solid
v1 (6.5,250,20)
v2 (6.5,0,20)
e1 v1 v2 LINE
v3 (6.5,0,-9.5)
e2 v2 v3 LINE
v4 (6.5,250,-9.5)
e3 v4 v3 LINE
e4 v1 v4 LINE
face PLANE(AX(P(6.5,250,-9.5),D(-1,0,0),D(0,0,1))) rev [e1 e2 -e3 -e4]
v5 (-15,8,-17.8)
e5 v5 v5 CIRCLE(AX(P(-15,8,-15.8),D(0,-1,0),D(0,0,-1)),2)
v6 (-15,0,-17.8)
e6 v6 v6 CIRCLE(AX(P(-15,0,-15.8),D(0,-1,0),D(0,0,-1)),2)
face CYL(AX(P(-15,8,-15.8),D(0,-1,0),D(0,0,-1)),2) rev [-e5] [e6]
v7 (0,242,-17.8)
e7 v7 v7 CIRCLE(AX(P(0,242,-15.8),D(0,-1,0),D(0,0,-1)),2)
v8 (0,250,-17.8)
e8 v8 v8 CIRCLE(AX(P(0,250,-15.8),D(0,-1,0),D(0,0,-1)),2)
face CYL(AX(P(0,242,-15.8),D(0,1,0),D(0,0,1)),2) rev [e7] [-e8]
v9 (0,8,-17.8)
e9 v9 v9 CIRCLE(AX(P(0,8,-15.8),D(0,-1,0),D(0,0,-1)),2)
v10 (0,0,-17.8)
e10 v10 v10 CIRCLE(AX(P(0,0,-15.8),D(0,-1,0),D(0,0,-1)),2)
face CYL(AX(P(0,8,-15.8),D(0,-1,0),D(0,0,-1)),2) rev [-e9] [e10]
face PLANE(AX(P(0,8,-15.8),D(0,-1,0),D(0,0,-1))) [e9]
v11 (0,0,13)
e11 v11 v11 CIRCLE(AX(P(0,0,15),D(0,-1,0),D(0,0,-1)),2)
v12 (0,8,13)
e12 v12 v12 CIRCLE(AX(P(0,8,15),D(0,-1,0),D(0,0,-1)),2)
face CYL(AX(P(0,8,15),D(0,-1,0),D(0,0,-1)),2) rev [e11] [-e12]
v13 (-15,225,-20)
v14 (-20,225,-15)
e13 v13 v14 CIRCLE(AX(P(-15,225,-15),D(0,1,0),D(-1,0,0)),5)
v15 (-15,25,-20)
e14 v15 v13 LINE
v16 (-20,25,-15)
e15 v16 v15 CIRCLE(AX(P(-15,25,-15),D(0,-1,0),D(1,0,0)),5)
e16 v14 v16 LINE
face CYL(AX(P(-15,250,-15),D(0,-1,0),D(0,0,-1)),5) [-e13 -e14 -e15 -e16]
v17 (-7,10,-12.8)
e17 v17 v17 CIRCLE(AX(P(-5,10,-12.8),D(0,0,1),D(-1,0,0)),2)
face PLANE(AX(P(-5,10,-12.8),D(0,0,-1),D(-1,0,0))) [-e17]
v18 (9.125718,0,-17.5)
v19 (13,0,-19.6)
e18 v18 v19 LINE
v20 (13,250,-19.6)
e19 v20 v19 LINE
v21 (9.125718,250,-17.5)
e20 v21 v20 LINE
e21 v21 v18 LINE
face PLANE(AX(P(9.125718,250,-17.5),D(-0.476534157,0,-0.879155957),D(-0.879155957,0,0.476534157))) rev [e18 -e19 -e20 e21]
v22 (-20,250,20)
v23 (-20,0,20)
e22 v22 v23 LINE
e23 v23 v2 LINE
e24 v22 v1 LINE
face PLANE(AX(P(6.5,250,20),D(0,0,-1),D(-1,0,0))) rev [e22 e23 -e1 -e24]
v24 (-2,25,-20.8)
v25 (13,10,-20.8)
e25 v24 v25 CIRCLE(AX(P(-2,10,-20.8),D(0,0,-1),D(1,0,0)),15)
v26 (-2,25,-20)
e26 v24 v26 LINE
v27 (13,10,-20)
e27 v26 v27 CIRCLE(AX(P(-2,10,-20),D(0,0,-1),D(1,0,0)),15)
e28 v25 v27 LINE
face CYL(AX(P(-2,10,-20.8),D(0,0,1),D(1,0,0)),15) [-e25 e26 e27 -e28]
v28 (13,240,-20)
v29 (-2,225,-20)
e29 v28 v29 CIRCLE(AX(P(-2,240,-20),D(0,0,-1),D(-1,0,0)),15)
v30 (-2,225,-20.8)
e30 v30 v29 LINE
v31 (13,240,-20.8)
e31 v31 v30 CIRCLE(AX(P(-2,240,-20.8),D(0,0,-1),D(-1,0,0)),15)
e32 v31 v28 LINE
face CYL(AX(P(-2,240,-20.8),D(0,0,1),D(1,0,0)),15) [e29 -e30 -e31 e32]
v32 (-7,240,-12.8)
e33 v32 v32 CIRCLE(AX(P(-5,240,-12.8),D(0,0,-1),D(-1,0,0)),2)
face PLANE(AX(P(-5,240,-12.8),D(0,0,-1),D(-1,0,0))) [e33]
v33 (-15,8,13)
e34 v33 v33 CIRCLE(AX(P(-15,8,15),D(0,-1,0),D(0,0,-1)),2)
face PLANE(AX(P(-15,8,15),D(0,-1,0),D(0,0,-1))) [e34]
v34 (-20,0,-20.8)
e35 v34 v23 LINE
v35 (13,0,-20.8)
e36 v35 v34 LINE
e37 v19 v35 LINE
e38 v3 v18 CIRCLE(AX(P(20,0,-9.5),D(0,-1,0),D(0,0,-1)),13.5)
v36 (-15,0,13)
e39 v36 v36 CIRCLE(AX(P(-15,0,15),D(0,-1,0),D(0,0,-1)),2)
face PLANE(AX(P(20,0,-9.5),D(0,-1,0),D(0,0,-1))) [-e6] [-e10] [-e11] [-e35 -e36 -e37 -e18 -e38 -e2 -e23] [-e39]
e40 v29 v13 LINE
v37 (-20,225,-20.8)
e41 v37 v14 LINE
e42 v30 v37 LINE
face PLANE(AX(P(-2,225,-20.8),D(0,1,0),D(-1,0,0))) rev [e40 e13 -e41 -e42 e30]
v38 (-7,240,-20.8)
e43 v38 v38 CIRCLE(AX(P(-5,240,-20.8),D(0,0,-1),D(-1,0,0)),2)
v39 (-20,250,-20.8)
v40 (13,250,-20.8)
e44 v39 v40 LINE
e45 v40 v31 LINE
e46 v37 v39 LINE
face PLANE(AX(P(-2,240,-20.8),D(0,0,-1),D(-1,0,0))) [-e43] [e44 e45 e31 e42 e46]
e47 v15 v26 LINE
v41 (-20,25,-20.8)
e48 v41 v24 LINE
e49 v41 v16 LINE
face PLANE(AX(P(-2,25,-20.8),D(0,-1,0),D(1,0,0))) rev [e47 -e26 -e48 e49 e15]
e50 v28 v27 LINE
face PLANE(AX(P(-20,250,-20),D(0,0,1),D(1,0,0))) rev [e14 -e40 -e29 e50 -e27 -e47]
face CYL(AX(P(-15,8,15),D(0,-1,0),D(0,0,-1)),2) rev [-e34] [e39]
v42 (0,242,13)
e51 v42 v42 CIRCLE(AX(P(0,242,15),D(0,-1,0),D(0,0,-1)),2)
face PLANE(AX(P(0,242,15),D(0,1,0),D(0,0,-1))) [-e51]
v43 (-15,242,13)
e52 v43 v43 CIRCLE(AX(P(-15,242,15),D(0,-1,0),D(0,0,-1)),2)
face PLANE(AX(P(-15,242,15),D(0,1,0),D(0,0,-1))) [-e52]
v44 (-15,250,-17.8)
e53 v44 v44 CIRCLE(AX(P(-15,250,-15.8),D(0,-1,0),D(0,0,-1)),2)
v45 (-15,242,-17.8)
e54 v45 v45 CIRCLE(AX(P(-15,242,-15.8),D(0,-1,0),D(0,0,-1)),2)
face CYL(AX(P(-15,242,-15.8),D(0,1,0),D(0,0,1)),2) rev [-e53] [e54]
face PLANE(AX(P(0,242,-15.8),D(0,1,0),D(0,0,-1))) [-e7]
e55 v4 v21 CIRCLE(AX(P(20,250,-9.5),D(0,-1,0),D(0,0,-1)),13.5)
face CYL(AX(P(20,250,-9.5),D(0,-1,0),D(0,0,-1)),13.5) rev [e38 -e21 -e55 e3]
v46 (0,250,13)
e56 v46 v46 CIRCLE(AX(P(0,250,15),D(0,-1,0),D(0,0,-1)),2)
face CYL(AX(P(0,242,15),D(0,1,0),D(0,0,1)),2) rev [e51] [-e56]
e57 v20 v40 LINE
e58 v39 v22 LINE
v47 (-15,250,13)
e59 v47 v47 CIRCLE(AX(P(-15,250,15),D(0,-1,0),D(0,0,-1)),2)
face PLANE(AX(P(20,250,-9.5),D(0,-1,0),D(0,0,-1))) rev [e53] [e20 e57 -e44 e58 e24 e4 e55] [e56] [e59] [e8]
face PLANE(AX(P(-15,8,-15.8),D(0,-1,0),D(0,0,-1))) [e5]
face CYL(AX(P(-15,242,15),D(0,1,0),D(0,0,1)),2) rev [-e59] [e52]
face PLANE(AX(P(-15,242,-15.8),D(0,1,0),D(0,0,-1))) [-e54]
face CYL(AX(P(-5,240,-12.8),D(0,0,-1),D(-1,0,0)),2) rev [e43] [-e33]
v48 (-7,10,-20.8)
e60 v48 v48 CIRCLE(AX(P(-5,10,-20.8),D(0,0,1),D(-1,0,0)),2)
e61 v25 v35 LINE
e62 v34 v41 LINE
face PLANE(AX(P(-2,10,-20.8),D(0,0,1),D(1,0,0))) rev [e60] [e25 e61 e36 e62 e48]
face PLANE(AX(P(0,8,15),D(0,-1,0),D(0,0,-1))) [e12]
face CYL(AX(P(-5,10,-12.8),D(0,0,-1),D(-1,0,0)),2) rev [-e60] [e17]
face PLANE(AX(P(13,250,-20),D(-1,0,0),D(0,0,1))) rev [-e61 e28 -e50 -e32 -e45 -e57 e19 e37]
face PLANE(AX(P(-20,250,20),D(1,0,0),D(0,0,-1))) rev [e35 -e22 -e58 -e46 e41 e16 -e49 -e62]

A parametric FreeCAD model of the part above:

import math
import FreeCAD as App
import Part
import Sketcher

V = App.Vector


def edges_at(feature, points):
    """Names of the edges that pass closest to the given points."""
    edges = feature.Shape.Edges
    near = lambda p: min(range(len(edges)), key=lambda i: edges[i].distToShape(Part.Vertex(*p))[0])
    return sorted({f"Edge{near(p) + 1}" for p in points})

doc = App.newDocument("Part")
body = doc.addObject("PartDesign::Body", "Body")

# Sketch on XZ plane
sketch1 = body.newObject("Sketcher::SketchObject", "Sketch")
sketch1.AttachmentSupport = (doc.getObject("XZ_Plane"), [""])
sketch1.MapMode = "FlatFace"
sketch1.addGeometry([
    Part.LineSegment(V(6.5, 20, 0), V(6.5, -9.5, 0)),  # 0
    Part.ArcOfCircle(Part.Circle(V(20, -9.5, 0), V(0, 0, 1), 13.5), math.radians(180), math.radians(216)),  # 1
    Part.LineSegment(V(9.13, -17.5, 0), V(13, -19.6, 0)),  # 2
    Part.LineSegment(V(13, -19.6, 0), V(13, -20, 0)),  # 3
    Part.LineSegment(V(13, -20, 0), V(-20, -20, 0)),  # 4
    Part.LineSegment(V(-20, -20, 0), V(-20, 20, 0)),  # 5
    Part.LineSegment(V(-20, 20, 0), V(6.5, 20, 0)),  # 6
], False)
sketch1.addConstraint([
    Sketcher.Constraint("Tangent", 0, 2, 1, 1),
    Sketcher.Constraint("Coincident", 1, 2, 2, 1),
    Sketcher.Constraint("Coincident", 2, 2, 3, 1),
    Sketcher.Constraint("Coincident", 3, 2, 4, 1),
    Sketcher.Constraint("Coincident", 4, 2, 5, 1),
    Sketcher.Constraint("Coincident", 5, 2, 6, 1),
    Sketcher.Constraint("Coincident", 6, 2, 0, 1),
    Sketcher.Constraint("Vertical", 0),
    Sketcher.Constraint("Vertical", 3),
    Sketcher.Constraint("Horizontal", 4),
    Sketcher.Constraint("Vertical", 5),
    Sketcher.Constraint("Horizontal", 6),
    Sketcher.Constraint("Radius", 1, 13.5),
    Sketcher.Constraint("DistanceX", 4, 2, 4, 1, 33.0),
    Sketcher.Constraint("DistanceY", 5, 1, 5, 2, 40.0),
    Sketcher.Constraint("DistanceX", 6, 1, 6, 2, 26.5),
    Sketcher.Constraint("DistanceY", 0, 2, 0, 1, 29.5),
    Sketcher.Constraint("DistanceY", 3, 2, 3, 1, 0.4),
    Sketcher.Constraint("DistanceX", -1, 1, 1, 3, 20.0),
    Sketcher.Constraint("DistanceY", 3, 2, -1, 1, 20.0),
    Sketcher.Constraint("DistanceY", 1, 2, 0, 2, 8.0),
])
pad1 = body.newObject("PartDesign::Pad", "Pad")
pad1.Profile = sketch1
pad1.Length = 250
pad1.Reversed = True

# Sketch on XY plane
sketch2 = body.newObject("Sketcher::SketchObject", "Sketch001")
sketch2.AttachmentSupport = (doc.getObject("XY_Plane"), [""])
sketch2.MapMode = "FlatFace"
sketch2.AttachmentOffset = App.Placement(V(0, 0, -20), App.Rotation())
sketch2.addGeometry([
    Part.LineSegment(V(-20, 225, 0), V(-20, 250, 0)),  # 0
    Part.LineSegment(V(-20, 250, 0), V(13, 250, 0)),  # 1
    Part.LineSegment(V(13, 250, 0), V(13, 240, 0)),  # 2
    Part.ArcOfCircle(Part.Circle(V(-2, 240, 0), V(0, 0, 1), 15), math.radians(-90), math.radians(0)),  # 3
    Part.LineSegment(V(-2, 225, 0), V(-20, 225, 0)),  # 4
    Part.LineSegment(V(13, 10, 0), V(13, 0, 0)),  # 5
    Part.LineSegment(V(13, 0, 0), V(-20, 0, 0)),  # 6
    Part.LineSegment(V(-20, 0, 0), V(-20, 25, 0)),  # 7
    Part.LineSegment(V(-20, 25, 0), V(-2, 25, 0)),  # 8
    Part.ArcOfCircle(Part.Circle(V(-2, 10, 0), V(0, 0, 1), 15), math.radians(0), math.radians(90)),  # 9
], False)
sketch2.addConstraint([
    Sketcher.Constraint("Coincident", 0, 2, 1, 1),
    Sketcher.Constraint("Coincident", 1, 2, 2, 1),
    Sketcher.Constraint("Tangent", 2, 2, 3, 2),
    Sketcher.Constraint("Tangent", 3, 1, 4, 1),
    Sketcher.Constraint("Coincident", 4, 2, 0, 1),
    Sketcher.Constraint("Coincident", 5, 2, 6, 1),
    Sketcher.Constraint("Coincident", 6, 2, 7, 1),
    Sketcher.Constraint("Coincident", 7, 2, 8, 1),
    Sketcher.Constraint("Tangent", 8, 2, 9, 2),
    Sketcher.Constraint("Tangent", 9, 1, 5, 1),
    Sketcher.Constraint("Vertical", 0),
    Sketcher.Constraint("Horizontal", 1),
    Sketcher.Constraint("Vertical", 2),
    Sketcher.Constraint("Horizontal", 4),
    Sketcher.Constraint("Vertical", 5),
    Sketcher.Constraint("Horizontal", 6),
    Sketcher.Constraint("Vertical", 7),
    Sketcher.Constraint("Horizontal", 8),
    Sketcher.Constraint("Equal", 3, 9),
    Sketcher.Constraint("PointOnObject", 5, 2, -1),
    Sketcher.Constraint("Vertical", 3, 3, 9, 3),
    Sketcher.Constraint("Vertical", 4, 2, 6, 2),
    Sketcher.Constraint("Equal", 2, 5),
    Sketcher.Constraint("Radius", 3, 15.0),
    Sketcher.Constraint("DistanceX", 1, 1, 1, 2, 33.0),
    Sketcher.Constraint("DistanceY", 0, 1, 0, 2, 25.0),
    Sketcher.Constraint("DistanceX", 3, 3, -1, 1, 2.0),
    Sketcher.Constraint("DistanceY", -1, 1, 3, 3, 240.0),
])
pad2 = body.newObject("PartDesign::Pad", "Pad001")
pad2.Profile = sketch2
pad2.Length = 0.8
pad2.Reversed = True

# Sketch on XZ plane
sketch3 = body.newObject("Sketcher::SketchObject", "Sketch002")
sketch3.AttachmentSupport = (doc.getObject("XZ_Plane"), [""])
sketch3.MapMode = "FlatFace"
sketch3.addGeometry([
    Part.Circle(V(-15, 15, 0), V(0, 0, 1), 2),
    Part.Circle(V(0, 15, 0), V(0, 0, 1), 2),
    Part.Circle(V(0, -15.8, 0), V(0, 0, 1), 2),
    Part.Circle(V(-15, -15.8, 0), V(0, 0, 1), 2),
], False)
sketch3.addConstraint([
    Sketcher.Constraint("Equal", 0, 1),
    Sketcher.Constraint("Equal", 1, 2),
    Sketcher.Constraint("Equal", 2, 3),
    Sketcher.Constraint("PointOnObject", 1, 3, -2),
    Sketcher.Constraint("PointOnObject", 2, 3, -2),
    Sketcher.Constraint("Horizontal", 0, 3, 1, 3),
    Sketcher.Constraint("Horizontal", 2, 3, 3, 3),
    Sketcher.Constraint("Vertical", 0, 3, 3, 3),
    Sketcher.Constraint("Diameter", 0, 4.0),
    Sketcher.Constraint("DistanceX", 0, 3, -1, 1, 15.0),
    Sketcher.Constraint("DistanceY", -1, 1, 0, 3, 15.0),
    Sketcher.Constraint("DistanceY", 2, 3, -1, 1, 15.8),
])
pocket1 = body.newObject("PartDesign::Pocket", "Pocket")
pocket1.Profile = sketch3
pocket1.Length = 8
doc.recompute()

datumplane = body.newObject("PartDesign::Plane", "DatumPlane")
datumplane.AttachmentSupport = (doc.getObject("XZ_Plane"), [""])
datumplane.MapMode = "FlatFace"
datumplane.AttachmentOffset = App.Placement(V(0, 0, -125), App.Rotation())
mirrored = body.newObject("PartDesign::Mirrored", "Mirrored")
mirrored.Originals = [pocket1]
mirrored.MirrorPlane = (datumplane, [""])
body.Tip = mirrored
doc.recompute()

fillet = body.newObject("PartDesign::Fillet", "Fillet")
fillet.Base = (mirrored, edges_at(mirrored, [(-20, 125, -20)]))
fillet.Radius = 5

# Sketch on XY plane
sketch4 = body.newObject("Sketcher::SketchObject", "Sketch003")
sketch4.AttachmentSupport = (doc.getObject("XY_Plane"), [""])
sketch4.MapMode = "FlatFace"
sketch4.AttachmentOffset = App.Placement(V(0, 0, -20.8), App.Rotation())
sketch4.addGeometry(Part.Circle(V(-5, 240, 0), V(0, 0, 1), 2), False)
sketch4.addConstraint([
    Sketcher.Constraint("Diameter", 0, 4.0),
    Sketcher.Constraint("DistanceX", 0, 3, -1, 1, 5.0),
    Sketcher.Constraint("DistanceY", -1, 1, 0, 3, 240.0),
])
pocket2 = body.newObject("PartDesign::Pocket", "Pocket001")
pocket2.Profile = sketch4
pocket2.Length = 8
pocket2.Reversed = True
doc.recompute()

datumplane2 = body.newObject("PartDesign::Plane", "DatumPlane001")
datumplane2.AttachmentSupport = (doc.getObject("XZ_Plane"), [""])
datumplane2.MapMode = "FlatFace"
datumplane2.AttachmentOffset = App.Placement(V(0, 0, -125), App.Rotation())
mirrored2 = body.newObject("PartDesign::Mirrored", "Mirrored001")
mirrored2.Originals = [pocket2]
mirrored2.MirrorPlane = (datumplane2, [""])
body.Tip = mirrored2

doc.recompute()
